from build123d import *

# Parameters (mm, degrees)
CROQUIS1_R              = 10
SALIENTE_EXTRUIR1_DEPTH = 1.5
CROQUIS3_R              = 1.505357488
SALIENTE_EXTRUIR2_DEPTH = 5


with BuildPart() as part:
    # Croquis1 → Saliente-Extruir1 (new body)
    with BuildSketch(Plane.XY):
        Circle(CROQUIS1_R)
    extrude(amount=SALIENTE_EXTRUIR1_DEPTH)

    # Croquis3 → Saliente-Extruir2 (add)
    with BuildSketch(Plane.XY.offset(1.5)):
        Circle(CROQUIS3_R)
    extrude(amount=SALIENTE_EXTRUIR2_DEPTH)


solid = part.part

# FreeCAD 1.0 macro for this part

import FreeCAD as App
import Part
import Sketcher
from FreeCAD import Vector

doc = App.newDocument("Part")
body = doc.addObject("PartDesign::Body", "Body")

# Sketch on XY plane
sketch1 = body.newObject("Sketcher::SketchObject", "Sketch")
sketch1.AttachmentSupport = (doc.getObject("XY_Plane"), [""])
sketch1.MapMode = "FlatFace"
sketch1.addGeometry(Part.Circle(Vector(0, 0, 0), Vector(0, 0, 1), 10), False)
sketch1.addConstraint([
    Sketcher.Constraint("Coincident", 0, 3, -1, 1),
    Sketcher.Constraint("Diameter", 0, 20.0),
])
pad1 = body.newObject("PartDesign::Pad", "Pad")
pad1.Profile = sketch1
pad1.Length = 1.5

# Sketch on XY plane
sketch2 = body.newObject("Sketcher::SketchObject", "Sketch001")
sketch2.AttachmentSupport = (doc.getObject("XY_Plane"), [""])
sketch2.MapMode = "FlatFace"
sketch2.AttachmentOffset = App.Placement(Vector(0, 0, 1.5), App.Rotation())
sketch2.addGeometry(Part.Circle(Vector(0, 0, 0), Vector(0, 0, 1), 1.505357), False)
sketch2.addConstraint([
    Sketcher.Constraint("Coincident", 0, 3, -1, 1),
    Sketcher.Constraint("Diameter", 0, 3.010715),
])
pad2 = body.newObject("PartDesign::Pad", "Pad001")
pad2.Profile = sketch2
pad2.Length = 5

doc.recompute()
